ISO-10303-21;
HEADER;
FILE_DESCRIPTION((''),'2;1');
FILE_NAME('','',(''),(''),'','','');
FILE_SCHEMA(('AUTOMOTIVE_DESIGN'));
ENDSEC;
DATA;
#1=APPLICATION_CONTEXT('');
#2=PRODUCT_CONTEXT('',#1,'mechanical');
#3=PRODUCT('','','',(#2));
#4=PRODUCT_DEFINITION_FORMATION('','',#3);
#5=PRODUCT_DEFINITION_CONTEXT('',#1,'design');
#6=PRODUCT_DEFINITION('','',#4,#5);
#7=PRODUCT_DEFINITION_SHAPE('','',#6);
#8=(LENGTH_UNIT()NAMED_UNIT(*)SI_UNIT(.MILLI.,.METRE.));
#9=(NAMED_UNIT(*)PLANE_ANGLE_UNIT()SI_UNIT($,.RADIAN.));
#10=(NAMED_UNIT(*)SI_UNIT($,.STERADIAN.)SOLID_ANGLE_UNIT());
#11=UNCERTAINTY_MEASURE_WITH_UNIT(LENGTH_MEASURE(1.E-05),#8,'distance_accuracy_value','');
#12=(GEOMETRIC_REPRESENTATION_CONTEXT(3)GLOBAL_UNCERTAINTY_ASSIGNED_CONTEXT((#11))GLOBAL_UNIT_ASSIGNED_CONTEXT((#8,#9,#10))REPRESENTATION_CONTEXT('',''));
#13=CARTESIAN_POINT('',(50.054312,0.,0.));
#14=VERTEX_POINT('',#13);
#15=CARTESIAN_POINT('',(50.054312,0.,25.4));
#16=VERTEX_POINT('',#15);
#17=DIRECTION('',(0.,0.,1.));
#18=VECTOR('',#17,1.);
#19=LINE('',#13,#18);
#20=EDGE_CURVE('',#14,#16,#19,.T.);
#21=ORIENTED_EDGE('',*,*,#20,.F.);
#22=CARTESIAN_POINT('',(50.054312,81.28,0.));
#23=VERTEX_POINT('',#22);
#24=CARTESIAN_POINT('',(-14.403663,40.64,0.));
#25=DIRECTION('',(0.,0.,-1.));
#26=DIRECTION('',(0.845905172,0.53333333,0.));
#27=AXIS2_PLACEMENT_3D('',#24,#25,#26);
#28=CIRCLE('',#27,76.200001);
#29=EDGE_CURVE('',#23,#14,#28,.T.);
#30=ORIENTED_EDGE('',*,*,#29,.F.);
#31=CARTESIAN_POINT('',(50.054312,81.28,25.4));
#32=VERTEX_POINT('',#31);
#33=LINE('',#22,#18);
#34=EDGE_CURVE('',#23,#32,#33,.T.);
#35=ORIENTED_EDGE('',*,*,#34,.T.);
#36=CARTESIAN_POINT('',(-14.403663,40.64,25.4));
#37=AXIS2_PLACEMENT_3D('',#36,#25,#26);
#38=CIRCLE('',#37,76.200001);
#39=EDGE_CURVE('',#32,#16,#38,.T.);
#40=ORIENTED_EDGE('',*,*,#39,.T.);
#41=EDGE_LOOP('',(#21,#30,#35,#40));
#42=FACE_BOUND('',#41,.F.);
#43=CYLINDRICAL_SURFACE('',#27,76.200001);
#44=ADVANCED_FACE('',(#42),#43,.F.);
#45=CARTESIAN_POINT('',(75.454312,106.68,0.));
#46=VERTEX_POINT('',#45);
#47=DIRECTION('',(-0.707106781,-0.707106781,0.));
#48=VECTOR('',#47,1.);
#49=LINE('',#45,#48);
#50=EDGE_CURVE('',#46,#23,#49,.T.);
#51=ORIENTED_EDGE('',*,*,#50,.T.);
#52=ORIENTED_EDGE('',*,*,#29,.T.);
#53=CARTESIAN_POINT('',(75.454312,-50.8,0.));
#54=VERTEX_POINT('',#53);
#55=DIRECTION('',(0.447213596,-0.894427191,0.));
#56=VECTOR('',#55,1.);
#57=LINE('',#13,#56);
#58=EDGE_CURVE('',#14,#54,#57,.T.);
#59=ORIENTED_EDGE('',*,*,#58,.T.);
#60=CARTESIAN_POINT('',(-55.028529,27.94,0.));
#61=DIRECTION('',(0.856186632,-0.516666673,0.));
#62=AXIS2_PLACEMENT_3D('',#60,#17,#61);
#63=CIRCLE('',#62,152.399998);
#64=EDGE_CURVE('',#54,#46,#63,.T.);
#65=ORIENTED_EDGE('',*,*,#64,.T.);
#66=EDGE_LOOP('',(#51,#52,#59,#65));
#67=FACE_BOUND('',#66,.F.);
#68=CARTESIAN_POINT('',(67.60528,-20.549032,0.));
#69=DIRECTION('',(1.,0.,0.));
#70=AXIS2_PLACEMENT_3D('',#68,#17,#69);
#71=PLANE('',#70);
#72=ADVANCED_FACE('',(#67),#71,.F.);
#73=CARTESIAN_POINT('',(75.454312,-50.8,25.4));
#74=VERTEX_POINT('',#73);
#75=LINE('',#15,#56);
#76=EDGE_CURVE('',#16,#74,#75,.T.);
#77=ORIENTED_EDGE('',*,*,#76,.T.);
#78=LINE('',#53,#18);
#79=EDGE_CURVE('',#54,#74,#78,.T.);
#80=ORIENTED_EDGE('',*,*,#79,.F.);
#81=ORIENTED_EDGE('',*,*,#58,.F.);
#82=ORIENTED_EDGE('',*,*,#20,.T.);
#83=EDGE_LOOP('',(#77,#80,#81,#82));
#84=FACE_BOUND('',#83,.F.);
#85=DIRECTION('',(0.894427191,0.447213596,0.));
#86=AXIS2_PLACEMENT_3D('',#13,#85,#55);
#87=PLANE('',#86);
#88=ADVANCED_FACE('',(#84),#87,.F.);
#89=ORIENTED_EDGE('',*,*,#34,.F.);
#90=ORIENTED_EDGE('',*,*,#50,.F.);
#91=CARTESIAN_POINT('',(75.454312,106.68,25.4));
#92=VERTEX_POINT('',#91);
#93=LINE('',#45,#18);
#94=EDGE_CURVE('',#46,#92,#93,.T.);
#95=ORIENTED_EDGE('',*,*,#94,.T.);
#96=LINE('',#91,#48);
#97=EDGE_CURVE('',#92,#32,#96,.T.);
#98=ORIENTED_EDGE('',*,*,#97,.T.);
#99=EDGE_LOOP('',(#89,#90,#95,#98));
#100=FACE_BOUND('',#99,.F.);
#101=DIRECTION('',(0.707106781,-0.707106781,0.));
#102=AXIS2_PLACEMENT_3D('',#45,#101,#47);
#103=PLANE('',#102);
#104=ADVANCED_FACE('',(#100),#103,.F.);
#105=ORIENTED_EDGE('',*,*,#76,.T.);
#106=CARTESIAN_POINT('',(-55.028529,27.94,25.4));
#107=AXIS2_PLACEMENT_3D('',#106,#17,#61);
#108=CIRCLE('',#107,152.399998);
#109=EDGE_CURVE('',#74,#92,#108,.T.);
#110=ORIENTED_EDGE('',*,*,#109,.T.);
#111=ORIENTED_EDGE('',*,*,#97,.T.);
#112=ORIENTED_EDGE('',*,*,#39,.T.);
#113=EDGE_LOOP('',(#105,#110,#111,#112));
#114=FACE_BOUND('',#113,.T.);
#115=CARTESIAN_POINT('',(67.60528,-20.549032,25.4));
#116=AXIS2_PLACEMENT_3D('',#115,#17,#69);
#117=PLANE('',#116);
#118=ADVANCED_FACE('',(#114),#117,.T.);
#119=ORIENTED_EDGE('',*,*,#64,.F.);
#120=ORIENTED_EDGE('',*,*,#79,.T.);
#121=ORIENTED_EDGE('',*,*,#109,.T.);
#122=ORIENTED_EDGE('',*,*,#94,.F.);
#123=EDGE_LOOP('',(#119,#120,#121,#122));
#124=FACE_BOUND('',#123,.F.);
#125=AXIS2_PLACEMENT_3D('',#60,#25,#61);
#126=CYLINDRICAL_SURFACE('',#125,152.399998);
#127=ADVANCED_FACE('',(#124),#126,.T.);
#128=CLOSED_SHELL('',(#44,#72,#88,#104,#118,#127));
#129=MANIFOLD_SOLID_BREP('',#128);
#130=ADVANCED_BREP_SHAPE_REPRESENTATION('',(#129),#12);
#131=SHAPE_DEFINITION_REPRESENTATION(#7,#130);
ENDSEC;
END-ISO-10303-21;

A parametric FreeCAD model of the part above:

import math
import FreeCAD as App
import Part
import Sketcher
Q = App.Units.Quantity

doc = App.newDocument("Part")
params = doc.addObject("Spreadsheet::Sheet", "Params")
for row, (alias, value) in enumerate([
    ("sketch1_radius", "5.9999999 in"),
    ("sketch1_radius2", "3 in"),
    ("pad1_length", "1 in"),
], start=1):
    params.set(f"A{row}", alias)
    params.set(f"B{row}", "=" + value)
    params.setAlias(f"B{row}", alias)

body = doc.addObject("PartDesign::Body", "Body")

sketch1 = doc.addObject("Sketcher::SketchObject", "Sketch")
body.addObject(sketch1)
sketch1.AttachmentSupport = (doc.XY_Plane, [""])
sketch1.MapMode = "FlatFace"
sketch1.addGeometry([
    Part.LineSegment(App.Vector(50.054312, 0, 0), App.Vector(75.454312, -50.8, 0)),
    Part.ArcOfCircle(Part.Circle(App.Vector(-55.028529, 27.94, 0), App.Vector(0, 0, 1), 152.399998), math.radians(-31.108923), math.radians(31.108923)),
    Part.LineSegment(App.Vector(75.454312, 106.68, 0), App.Vector(50.054312, 81.28, 0)),
    Part.ArcOfCircle(Part.Circle(App.Vector(-14.403663, 40.64, 0), App.Vector(0, 0, 1), 76.200001), math.radians(-32.230952), math.radians(32.230952)),
], False)
sketch1.addConstraint([
    Sketcher.Constraint("Coincident", 0, 2, 1, 1),
    Sketcher.Constraint("Coincident", 1, 2, 2, 1),
    Sketcher.Constraint("Coincident", 2, 2, 3, 2),
    Sketcher.Constraint("Coincident", 3, 1, 0, 1),
    Sketcher.Constraint("PointOnObject", 3, 1, -1),
    Sketcher.Constraint("Vertical", 0, 2, 1, 2),
    Sketcher.Constraint("Vertical", 2, 2, 3, 1),
    Sketcher.Constraint("Radius", 1, Q("5.9999999 in")),
    Sketcher.Constraint("Radius", 3, Q("3 in")),
    Sketcher.Constraint("DistanceY", 0, 2, -1, 1, Q("2 in")),
    Sketcher.Constraint("Angle", 2, Q("-135 deg")),
    Sketcher.Constraint("DistanceX", 2, 2, 1, 2, Q("1 in")),
    Sketcher.Constraint("DistanceY", -1, 1, 1, 3, Q("1.1 in")),
    Sketcher.Constraint("DistanceX", 1, 3, -1, 1, Q("55.028529 mm")),
])
sketch1.setExpression("Constraints[7]", "Params.sketch1_radius")
sketch1.setExpression("Constraints[8]", "Params.sketch1_radius2")
pad1 = doc.addObject("PartDesign::Pad", "Pad")
body.addObject(pad1)
pad1.Profile = sketch1
pad1.setExpression("Length", "Params.pad1_length")

doc.recompute()
